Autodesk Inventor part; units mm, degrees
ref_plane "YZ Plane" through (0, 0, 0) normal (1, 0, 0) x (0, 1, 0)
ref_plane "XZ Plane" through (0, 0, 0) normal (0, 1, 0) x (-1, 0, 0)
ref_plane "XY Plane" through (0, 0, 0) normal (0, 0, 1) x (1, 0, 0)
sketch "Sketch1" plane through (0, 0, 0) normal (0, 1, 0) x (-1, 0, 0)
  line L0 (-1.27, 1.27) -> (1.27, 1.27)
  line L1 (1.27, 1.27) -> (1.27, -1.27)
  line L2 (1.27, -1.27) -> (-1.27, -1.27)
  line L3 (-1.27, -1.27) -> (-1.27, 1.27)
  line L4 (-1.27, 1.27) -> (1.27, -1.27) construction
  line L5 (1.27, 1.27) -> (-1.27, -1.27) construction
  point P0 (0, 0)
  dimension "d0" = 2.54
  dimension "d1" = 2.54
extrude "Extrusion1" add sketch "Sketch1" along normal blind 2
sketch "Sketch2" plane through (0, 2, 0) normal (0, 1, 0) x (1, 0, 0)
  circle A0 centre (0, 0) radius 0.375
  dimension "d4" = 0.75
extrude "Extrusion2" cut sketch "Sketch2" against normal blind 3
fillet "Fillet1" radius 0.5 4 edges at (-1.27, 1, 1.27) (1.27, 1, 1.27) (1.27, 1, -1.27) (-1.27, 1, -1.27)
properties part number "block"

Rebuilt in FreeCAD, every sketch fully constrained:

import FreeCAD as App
import Part
import Sketcher
Q = App.Units.Quantity


def edges_at(feature, points):
    """Names of the edges that pass closest to the given points."""
    edges = feature.Shape.Edges
    near = lambda p: min(range(len(edges)), key=lambda i: edges[i].distToShape(Part.Vertex(*p))[0])
    return sorted({f"Edge{near(p) + 1}" for p in points})

doc = App.newDocument("Part")
params = doc.addObject("Spreadsheet::Sheet", "Params")
for row, (alias, value) in enumerate([
    ("sketch1_width", "2.54 mm"),
    ("pad1_length", "2 mm"),
    ("sketch2_diameter", "0.75 mm"),
    ("pocket1_length", "3 mm"),
    ("fillet_radius", "0.5 mm"),
], start=1):
    params.set(f"A{row}", alias)
    params.set(f"B{row}", "=" + value)
    params.setAlias(f"B{row}", alias)

body = doc.addObject("PartDesign::Body", "Body")

# Sketch on XZ plane
sketch1 = body.newObject("Sketcher::SketchObject", "Sketch")
sketch1.AttachmentSupport = (doc.getObject("XZ_Plane"), [""])
sketch1.MapMode = "FlatFace"
sketch1.addGeometry(Part.LineSegment(App.Vector(-1.3, 1.3, 0), App.Vector(1.3, 1.3, 0)), False)
sketch1.addGeometry(Part.LineSegment(App.Vector(1.3, 1.3, 0), App.Vector(1.3, -1.3, 0)), False)
sketch1.addGeometry(Part.LineSegment(App.Vector(1.3, -1.3, 0), App.Vector(-1.3, -1.3, 0)), False)
sketch1.addGeometry(Part.LineSegment(App.Vector(-1.3, -1.3, 0), App.Vector(-1.3, 1.3, 0)), False)
sketch1.addConstraint(Sketcher.Constraint("Coincident", 0, 2, 1, 1))
sketch1.addConstraint(Sketcher.Constraint("Coincident", 1, 2, 2, 1))
sketch1.addConstraint(Sketcher.Constraint("Coincident", 2, 2, 3, 1))
sketch1.addConstraint(Sketcher.Constraint("Coincident", 3, 2, 0, 1))
sketch1.addConstraint(Sketcher.Constraint("Horizontal", 0))
sketch1.addConstraint(Sketcher.Constraint("Vertical", 1))
sketch1.addConstraint(Sketcher.Constraint("Horizontal", 2))
sketch1.addConstraint(Sketcher.Constraint("Vertical", 3))
sketch1.addConstraint(Sketcher.Constraint("Symmetric", 0, 2, 2, 2, -1, 1))
sketch1.addConstraint(Sketcher.Constraint("Equal", 2, 1))
sketch1.addConstraint(Sketcher.Constraint("DistanceX", 0, 1, 0, 2, Q("2.54 mm")))
sketch1.setExpression("Constraints[10]", "Params.sketch1_width")
pad1 = body.newObject("PartDesign::Pad", "Pad")
pad1.Profile = sketch1
pad1.setExpression("Length", "Params.pad1_length")
pad1.Reversed = True

# Sketch on XZ plane
sketch2 = body.newObject("Sketcher::SketchObject", "Sketch001")
sketch2.AttachmentSupport = (doc.getObject("XZ_Plane"), [""])
sketch2.MapMode = "FlatFace"
sketch2.AttachmentOffset = App.Placement(App.Vector(0, 0, -2), App.Rotation())
sketch2.addGeometry(Part.Circle(App.Vector(0, 0, 0), App.Vector(0, 0, 1), 0.38), False)
sketch2.addConstraint(Sketcher.Constraint("Coincident", 0, 3, -1, 1))
sketch2.addConstraint(Sketcher.Constraint("Diameter", 0, Q("0.75 mm")))
sketch2.setExpression("Constraints[1]", "Params.sketch2_diameter")
pocket1 = body.newObject("PartDesign::Pocket", "Pocket")
pocket1.Profile = sketch2
pocket1.setExpression("Length", "Params.pocket1_length")
pocket1.Reversed = True
doc.recompute()

fillet = body.newObject("PartDesign::Fillet", "Fillet")
fillet.Base = (pocket1, edges_at(pocket1, [
    (-1.27, 1, 1.27),
    (1.27, 1, 1.27),
    (1.27, 1, -1.27),
    (-1.27, 1, -1.27),
]))
fillet.setExpression("Radius", "Params.fillet_radius")

doc.recompute()
